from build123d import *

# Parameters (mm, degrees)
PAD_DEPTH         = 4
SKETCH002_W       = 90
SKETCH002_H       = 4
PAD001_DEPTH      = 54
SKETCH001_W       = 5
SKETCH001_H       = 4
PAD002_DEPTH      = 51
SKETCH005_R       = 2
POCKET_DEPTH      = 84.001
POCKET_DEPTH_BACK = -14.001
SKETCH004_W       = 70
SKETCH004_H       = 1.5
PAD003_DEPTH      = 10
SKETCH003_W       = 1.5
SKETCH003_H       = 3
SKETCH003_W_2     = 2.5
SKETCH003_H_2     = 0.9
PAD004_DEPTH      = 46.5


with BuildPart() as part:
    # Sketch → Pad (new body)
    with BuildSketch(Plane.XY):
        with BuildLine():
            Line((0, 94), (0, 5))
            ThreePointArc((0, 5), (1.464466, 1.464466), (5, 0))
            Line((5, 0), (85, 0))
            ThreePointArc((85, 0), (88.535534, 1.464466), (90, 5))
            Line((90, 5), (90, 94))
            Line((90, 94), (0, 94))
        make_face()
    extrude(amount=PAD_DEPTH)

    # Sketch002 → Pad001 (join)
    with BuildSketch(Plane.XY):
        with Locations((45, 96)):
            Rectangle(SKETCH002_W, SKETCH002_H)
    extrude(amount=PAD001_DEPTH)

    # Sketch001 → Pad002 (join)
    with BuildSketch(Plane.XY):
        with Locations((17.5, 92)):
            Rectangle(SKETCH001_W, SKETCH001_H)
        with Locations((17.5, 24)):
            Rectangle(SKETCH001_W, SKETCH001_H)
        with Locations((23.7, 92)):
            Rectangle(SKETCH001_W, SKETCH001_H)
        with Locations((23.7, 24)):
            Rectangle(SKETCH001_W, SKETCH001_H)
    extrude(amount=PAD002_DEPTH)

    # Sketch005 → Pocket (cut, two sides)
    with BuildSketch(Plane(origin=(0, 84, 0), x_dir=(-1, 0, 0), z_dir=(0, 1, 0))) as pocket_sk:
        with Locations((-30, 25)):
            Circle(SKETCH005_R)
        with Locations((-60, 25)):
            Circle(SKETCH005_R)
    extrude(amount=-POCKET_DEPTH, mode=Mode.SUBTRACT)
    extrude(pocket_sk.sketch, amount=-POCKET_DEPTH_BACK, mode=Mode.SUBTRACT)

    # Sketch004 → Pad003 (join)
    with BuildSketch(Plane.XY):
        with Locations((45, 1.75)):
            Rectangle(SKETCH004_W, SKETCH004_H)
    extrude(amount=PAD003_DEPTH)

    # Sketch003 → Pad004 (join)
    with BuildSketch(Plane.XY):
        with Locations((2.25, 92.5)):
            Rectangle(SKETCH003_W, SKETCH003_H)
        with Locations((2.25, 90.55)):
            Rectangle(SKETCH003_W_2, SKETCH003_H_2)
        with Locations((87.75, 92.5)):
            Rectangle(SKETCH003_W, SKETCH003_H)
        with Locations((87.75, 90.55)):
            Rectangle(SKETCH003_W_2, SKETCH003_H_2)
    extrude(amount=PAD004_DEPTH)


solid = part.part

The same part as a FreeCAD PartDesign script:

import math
import FreeCAD as App
import Part
import Sketcher

V = App.Vector


def add_polygon(sketch, points):
    """Adds a closed chain of lines whose ends are joined by coincident constraints."""
    first, n = sketch.GeometryCount, len(points)
    for a, b in zip(points, points[1:] + points[:1]):
        sketch.addGeometry(Part.LineSegment(App.Vector(*a, 0), App.Vector(*b, 0)), False)
    for i in range(n):
        sketch.addConstraint(Sketcher.Constraint("Coincident", first + i, 2, first + (i + 1) % n, 1))

doc = App.newDocument("Part")
body = doc.addObject("PartDesign::Body", "Body")

sketch1 = body.newObject("Sketcher::SketchObject", "Sketch")
sketch1.AttachmentSupport = (doc.getObject("XY_Plane"), [""])
sketch1.MapMode = "FlatFace"
sketch1.addGeometry([
    Part.LineSegment(V(0, 94, 0), V(0, 5, 0)),
    Part.ArcOfCircle(Part.Circle(V(5, 5, 0), V(0, 0, 1), 5), math.radians(180), math.radians(270)),
    Part.LineSegment(V(5, 0, 0), V(85, 0, 0)),
    Part.ArcOfCircle(Part.Circle(V(85, 5, 0), V(0, 0, 1), 5), math.radians(-90), math.radians(0)),
    Part.LineSegment(V(90, 5, 0), V(90, 94, 0)),
    Part.LineSegment(V(90, 94, 0), V(0, 94, 0)),
], False)
sketch1.addConstraint([
    Sketcher.Constraint("Tangent", 0, 2, 1, 1),
    Sketcher.Constraint("Tangent", 1, 2, 2, 1),
    Sketcher.Constraint("Tangent", 2, 2, 3, 1),
    Sketcher.Constraint("Tangent", 3, 2, 4, 1),
    Sketcher.Constraint("Coincident", 4, 2, 5, 1),
    Sketcher.Constraint("Coincident", 5, 2, 0, 1),
    Sketcher.Constraint("Vertical", 0),
    Sketcher.Constraint("Horizontal", 2),
    Sketcher.Constraint("Vertical", 4),
    Sketcher.Constraint("Horizontal", 5),
    Sketcher.Constraint("Equal", 1, 3),
    Sketcher.Constraint("PointOnObject", 0, 2, -2),
    Sketcher.Constraint("PointOnObject", 1, 2, -1),
    Sketcher.Constraint("Radius", 1, 5.0),
    Sketcher.Constraint("DistanceX", 2, 1, 2, 2, 80.0),
    Sketcher.Constraint("DistanceY", 0, 2, 0, 1, 89.0),
])
pad1 = body.newObject("PartDesign::Pad", "Pad")
pad1.Profile = sketch1
pad1.Length = 4

sketch2 = body.newObject("Sketcher::SketchObject", "Sketch001")
sketch2.AttachmentSupport = (doc.getObject("XY_Plane"), [""])
sketch2.MapMode = "FlatFace"
add_polygon(sketch2, [(0, 98), (0, 94), (90, 94), (90, 98)])
sketch2.addConstraint([
    Sketcher.Constraint("Vertical", 0),
    Sketcher.Constraint("Horizontal", 1),
    Sketcher.Constraint("Vertical", 2),
    Sketcher.Constraint("Horizontal", 3),
    Sketcher.Constraint("PointOnObject", 0, 2, -2),
    Sketcher.Constraint("DistanceX", 1, 1, 1, 2, 90.0),
    Sketcher.Constraint("DistanceY", 0, 2, 0, 1, 4.0),
    Sketcher.Constraint("DistanceY", -1, 1, 0, 2, 94.0),
])
pad2 = body.newObject("PartDesign::Pad", "Pad001")
pad2.Profile = sketch2
pad2.Length = 54

sketch3 = body.newObject("Sketcher::SketchObject", "Sketch002")
sketch3.AttachmentSupport = (doc.getObject("XY_Plane"), [""])
sketch3.MapMode = "FlatFace"
add_polygon(sketch3, [(15, 94), (15, 90), (20, 90), (20, 94)])
add_polygon(sketch3, [(15, 26), (15, 22), (20, 22), (20, 26)])
add_polygon(sketch3, [(21.2, 94), (21.2, 90), (26.2, 90), (26.2, 94)])
add_polygon(sketch3, [(21.2, 26), (21.2, 22), (26.2, 22), (26.2, 26)])
sketch3.addConstraint([
    Sketcher.Constraint("Vertical", 0),
    Sketcher.Constraint("Horizontal", 1),
    Sketcher.Constraint("Vertical", 2),
    Sketcher.Constraint("Horizontal", 3),
    Sketcher.Constraint("Vertical", 4),
    Sketcher.Constraint("Horizontal", 5),
    Sketcher.Constraint("Vertical", 6),
    Sketcher.Constraint("Horizontal", 7),
    Sketcher.Constraint("Vertical", 8),
    Sketcher.Constraint("Horizontal", 9),
    Sketcher.Constraint("Vertical", 10),
    Sketcher.Constraint("Horizontal", 11),
    Sketcher.Constraint("Vertical", 12),
    Sketcher.Constraint("Horizontal", 13),
    Sketcher.Constraint("Vertical", 14),
    Sketcher.Constraint("Horizontal", 15),
    Sketcher.Constraint("Horizontal", 1, 2, 8, 2),
    Sketcher.Constraint("Horizontal", 3, 2, 10, 2),
    Sketcher.Constraint("Horizontal", 5, 2, 12, 2),
    Sketcher.Constraint("Horizontal", 7, 2, 14, 2),
    Sketcher.Constraint("Vertical", 3, 2, 4, 2),
    Sketcher.Constraint("Vertical", 2, 2, 5, 2),
    Sketcher.Constraint("Vertical", 11, 2, 12, 2),
    Sketcher.Constraint("Vertical", 10, 2, 13, 2),
    Sketcher.Constraint("Equal", 7, 9),
    Sketcher.Constraint("Equal", 2, 4),
    Sketcher.Constraint("DistanceX", 1, 1, 1, 2, 5.0),
    Sketcher.Constraint("DistanceY", 0, 2, 0, 1, 4.0),
    Sketcher.Constraint("DistanceX", -1, 1, 0, 2, 15.0),
    Sketcher.Constraint("DistanceY", -1, 1, 0, 2, 90.0),
    Sketcher.Constraint("DistanceY", -1, 1, 4, 2, 22.0),
    Sketcher.Constraint("DistanceX", -1, 1, 8, 2, 21.2),
])
pad3 = body.newObject("PartDesign::Pad", "Pad002")
pad3.Profile = sketch3
pad3.Length = 51

sketch4 = body.newObject("Sketcher::SketchObject", "Sketch003")
sketch4.AttachmentSupport = (doc.getObject("XZ_Plane"), [""])
sketch4.MapMode = "FlatFace"
sketch4.AttachmentOffset = App.Placement(V(0, 0, -84), App.Rotation())
sketch4.addGeometry([
    Part.Circle(V(30, 25, 0), V(0, 0, 1), 2),
    Part.Circle(V(60, 25, 0), V(0, 0, 1), 2),
], False)
sketch4.addConstraint([
    Sketcher.Constraint("Equal", 0, 1),
    Sketcher.Constraint("Horizontal", 0, 3, 1, 3),
    Sketcher.Constraint("Diameter", 0, 4.0),
    Sketcher.Constraint("DistanceX", -1, 1, 0, 3, 30.0),
    Sketcher.Constraint("DistanceY", -1, 1, 0, 3, 25.0),
    Sketcher.Constraint("DistanceX", -1, 1, 1, 3, 60.0),
])
pocket1 = body.newObject("PartDesign::Pocket", "Pocket")
pocket1.Profile = sketch4
pocket1.Type = "ThroughAll"
pocket1.Midplane = True

sketch5 = body.newObject("Sketcher::SketchObject", "Sketch004")
sketch5.AttachmentSupport = (doc.getObject("XY_Plane"), [""])
sketch5.MapMode = "FlatFace"
add_polygon(sketch5, [(10, 2.5), (10, 1), (80, 1), (80, 2.5)])
sketch5.addConstraint([
    Sketcher.Constraint("Vertical", 0),
    Sketcher.Constraint("Horizontal", 1),
    Sketcher.Constraint("Vertical", 2),
    Sketcher.Constraint("Horizontal", 3),
    Sketcher.Constraint("DistanceX", 1, 1, 1, 2, 70.0),
    Sketcher.Constraint("DistanceY", 0, 2, 0, 1, 1.5),
    Sketcher.Constraint("DistanceX", -1, 1, 0, 2, 10.0),
    Sketcher.Constraint("DistanceY", -1, 1, 0, 2, 1.0),
])
pad4 = body.newObject("PartDesign::Pad", "Pad003")
pad4.Profile = sketch5
pad4.Length = 10

sketch6 = body.newObject("Sketcher::SketchObject", "Sketch005")
sketch6.AttachmentSupport = (doc.getObject("XY_Plane"), [""])
sketch6.MapMode = "FlatFace"
add_polygon(sketch6, [(1.5, 94), (1.5, 91), (1, 91), (1, 90.1), (3.5, 90.1), (3.5, 91), (3, 91), (3, 94)])
add_polygon(sketch6, [(87, 94), (87, 91), (86.5, 91), (86.5, 90.1), (89, 90.1), (89, 91), (88.5, 91), (88.5, 94)])
sketch6.addConstraint([
    Sketcher.Constraint("Vertical", 0),
    Sketcher.Constraint("Horizontal", 1),
    Sketcher.Constraint("Vertical", 2),
    Sketcher.Constraint("Horizontal", 3),
    Sketcher.Constraint("Vertical", 4),
    Sketcher.Constraint("Horizontal", 5),
    Sketcher.Constraint("Vertical", 6),
    Sketcher.Constraint("Horizontal", 7),
    Sketcher.Constraint("Vertical", 8),
    Sketcher.Constraint("Horizontal", 9),
    Sketcher.Constraint("Vertical", 10),
    Sketcher.Constraint("Horizontal", 11),
    Sketcher.Constraint("Vertical", 12),
    Sketcher.Constraint("Horizontal", 13),
    Sketcher.Constraint("Vertical", 14),
    Sketcher.Constraint("Horizontal", 15),
    Sketcher.Constraint("Horizontal", 1, 2, 4, 2),
    Sketcher.Constraint("Horizontal", 5, 2, 8, 2),
    Sketcher.Constraint("Horizontal", 3, 2, 10, 2),
    Sketcher.Constraint("Horizontal", 9, 2, 12, 2),
    Sketcher.Constraint("Horizontal", 7, 2, 14, 2),
    Sketcher.Constraint("Equal", 1, 5),
    Sketcher.Constraint("Equal", 5, 9),
    Sketcher.Constraint("Equal", 3, 11),
    Sketcher.Constraint("Equal", 9, 13),
    Sketcher.Constraint("DistanceY", 0, 2, 0, 1, 3.0),
    Sketcher.Constraint("DistanceX", 1, 2, 1, 1, 0.5),
    Sketcher.Constraint("DistanceX", 3, 1, 3, 2, 2.5),
    Sketcher.Constraint("DistanceY", 2, 2, 2, 1, 0.9),
    Sketcher.Constraint("DistanceY", -1, 1, 0, 2, 91.0),
    Sketcher.Constraint("DistanceX", -1, 1, 1, 2, 1.0),
    Sketcher.Constraint("DistanceX", -1, 1, 8, 2, 87.0),
])
pad5 = body.newObject("PartDesign::Pad", "Pad004")
pad5.Profile = sketch6
pad5.Length = 46.5

doc.recompute()
